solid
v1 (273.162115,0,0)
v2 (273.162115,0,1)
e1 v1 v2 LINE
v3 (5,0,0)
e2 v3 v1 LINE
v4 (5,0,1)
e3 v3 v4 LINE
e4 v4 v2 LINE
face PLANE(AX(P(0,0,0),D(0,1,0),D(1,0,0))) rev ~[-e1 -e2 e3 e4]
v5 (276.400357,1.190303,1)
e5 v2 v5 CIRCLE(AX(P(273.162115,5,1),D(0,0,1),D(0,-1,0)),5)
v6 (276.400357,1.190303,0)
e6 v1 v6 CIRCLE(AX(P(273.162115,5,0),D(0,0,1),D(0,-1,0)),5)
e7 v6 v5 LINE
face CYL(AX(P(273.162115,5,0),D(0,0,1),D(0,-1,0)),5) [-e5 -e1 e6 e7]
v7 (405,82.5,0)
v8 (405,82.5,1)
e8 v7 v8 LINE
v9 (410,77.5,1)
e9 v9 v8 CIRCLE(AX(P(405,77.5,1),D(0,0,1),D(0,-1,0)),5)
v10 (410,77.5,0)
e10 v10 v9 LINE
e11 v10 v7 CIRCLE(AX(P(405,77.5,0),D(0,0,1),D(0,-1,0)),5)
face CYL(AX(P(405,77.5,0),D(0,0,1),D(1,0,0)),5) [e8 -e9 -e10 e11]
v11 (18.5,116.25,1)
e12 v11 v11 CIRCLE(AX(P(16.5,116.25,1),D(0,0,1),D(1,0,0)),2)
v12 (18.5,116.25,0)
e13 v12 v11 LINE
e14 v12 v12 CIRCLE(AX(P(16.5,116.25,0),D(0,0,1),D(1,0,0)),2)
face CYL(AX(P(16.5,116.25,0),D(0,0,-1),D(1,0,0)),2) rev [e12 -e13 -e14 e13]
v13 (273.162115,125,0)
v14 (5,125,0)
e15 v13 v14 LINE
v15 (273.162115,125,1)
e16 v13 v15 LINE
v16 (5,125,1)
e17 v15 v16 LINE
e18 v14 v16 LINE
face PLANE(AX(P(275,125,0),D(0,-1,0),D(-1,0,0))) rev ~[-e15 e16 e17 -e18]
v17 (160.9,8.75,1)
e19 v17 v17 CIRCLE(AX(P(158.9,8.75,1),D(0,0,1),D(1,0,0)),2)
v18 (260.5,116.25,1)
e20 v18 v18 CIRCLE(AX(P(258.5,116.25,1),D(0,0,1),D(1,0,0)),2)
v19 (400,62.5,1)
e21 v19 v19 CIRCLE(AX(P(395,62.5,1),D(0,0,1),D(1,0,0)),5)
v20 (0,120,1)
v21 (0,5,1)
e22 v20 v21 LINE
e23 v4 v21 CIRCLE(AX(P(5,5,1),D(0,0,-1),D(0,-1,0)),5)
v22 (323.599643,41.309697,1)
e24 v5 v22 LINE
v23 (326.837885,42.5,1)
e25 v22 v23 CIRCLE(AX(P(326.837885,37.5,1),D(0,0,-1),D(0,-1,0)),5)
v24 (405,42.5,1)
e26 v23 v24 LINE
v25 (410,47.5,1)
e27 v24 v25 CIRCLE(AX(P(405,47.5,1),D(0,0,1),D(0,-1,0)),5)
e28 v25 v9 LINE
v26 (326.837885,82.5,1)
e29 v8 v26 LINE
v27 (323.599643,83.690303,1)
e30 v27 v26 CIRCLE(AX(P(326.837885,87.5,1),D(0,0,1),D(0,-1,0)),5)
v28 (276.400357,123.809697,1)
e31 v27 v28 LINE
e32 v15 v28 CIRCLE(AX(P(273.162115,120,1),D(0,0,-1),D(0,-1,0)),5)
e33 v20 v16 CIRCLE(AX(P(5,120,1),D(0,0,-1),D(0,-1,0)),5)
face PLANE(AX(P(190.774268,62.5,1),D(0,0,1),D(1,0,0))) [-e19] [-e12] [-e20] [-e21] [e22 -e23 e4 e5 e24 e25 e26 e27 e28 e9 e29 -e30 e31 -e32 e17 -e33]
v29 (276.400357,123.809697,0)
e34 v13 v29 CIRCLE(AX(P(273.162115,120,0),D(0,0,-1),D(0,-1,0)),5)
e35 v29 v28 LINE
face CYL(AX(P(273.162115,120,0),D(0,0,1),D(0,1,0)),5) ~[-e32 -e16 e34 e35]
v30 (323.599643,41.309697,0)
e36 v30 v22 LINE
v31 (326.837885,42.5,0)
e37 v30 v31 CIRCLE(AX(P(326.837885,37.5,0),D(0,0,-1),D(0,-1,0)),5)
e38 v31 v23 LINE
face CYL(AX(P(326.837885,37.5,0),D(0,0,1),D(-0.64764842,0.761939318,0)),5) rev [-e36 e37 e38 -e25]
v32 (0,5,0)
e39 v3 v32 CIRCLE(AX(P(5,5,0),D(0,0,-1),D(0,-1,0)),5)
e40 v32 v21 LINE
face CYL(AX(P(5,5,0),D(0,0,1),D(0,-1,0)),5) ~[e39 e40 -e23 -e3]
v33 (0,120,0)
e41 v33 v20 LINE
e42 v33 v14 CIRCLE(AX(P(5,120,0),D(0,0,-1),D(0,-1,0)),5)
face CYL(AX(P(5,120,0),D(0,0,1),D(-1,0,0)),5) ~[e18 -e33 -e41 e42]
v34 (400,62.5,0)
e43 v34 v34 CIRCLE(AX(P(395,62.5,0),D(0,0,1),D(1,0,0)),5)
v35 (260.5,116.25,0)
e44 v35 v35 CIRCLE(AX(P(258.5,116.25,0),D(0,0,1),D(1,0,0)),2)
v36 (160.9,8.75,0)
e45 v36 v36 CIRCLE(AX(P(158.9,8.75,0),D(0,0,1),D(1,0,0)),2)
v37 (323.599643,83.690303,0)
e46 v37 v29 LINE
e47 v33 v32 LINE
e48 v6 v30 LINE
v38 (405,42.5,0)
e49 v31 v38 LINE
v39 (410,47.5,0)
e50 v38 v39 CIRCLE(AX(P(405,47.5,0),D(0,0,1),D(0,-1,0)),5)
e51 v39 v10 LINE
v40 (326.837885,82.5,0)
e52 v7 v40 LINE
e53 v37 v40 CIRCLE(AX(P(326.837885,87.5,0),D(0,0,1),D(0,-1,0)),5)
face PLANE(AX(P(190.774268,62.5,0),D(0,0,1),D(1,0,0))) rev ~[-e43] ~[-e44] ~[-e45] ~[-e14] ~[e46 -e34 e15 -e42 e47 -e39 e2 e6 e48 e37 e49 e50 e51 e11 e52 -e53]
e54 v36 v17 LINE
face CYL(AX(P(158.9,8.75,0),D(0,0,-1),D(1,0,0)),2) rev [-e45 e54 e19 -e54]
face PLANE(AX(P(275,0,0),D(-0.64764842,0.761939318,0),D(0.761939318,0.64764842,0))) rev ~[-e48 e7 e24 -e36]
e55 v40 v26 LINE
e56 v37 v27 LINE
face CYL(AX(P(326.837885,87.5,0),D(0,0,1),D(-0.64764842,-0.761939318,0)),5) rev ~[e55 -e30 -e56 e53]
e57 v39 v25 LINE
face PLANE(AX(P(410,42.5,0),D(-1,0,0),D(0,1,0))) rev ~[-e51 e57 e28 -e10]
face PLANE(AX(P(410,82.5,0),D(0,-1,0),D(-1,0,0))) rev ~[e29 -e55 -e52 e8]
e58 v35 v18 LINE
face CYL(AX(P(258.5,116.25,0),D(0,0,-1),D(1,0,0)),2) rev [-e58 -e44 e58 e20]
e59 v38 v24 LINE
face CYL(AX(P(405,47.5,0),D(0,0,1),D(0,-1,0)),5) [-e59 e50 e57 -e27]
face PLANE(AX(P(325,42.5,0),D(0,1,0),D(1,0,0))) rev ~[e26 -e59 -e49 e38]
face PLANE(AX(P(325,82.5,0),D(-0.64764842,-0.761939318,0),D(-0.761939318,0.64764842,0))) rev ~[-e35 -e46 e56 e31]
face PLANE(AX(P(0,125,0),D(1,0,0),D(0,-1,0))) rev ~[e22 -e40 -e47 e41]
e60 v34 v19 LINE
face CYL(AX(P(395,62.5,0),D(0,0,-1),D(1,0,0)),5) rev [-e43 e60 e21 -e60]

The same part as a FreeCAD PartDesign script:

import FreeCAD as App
import Part
import Sketcher
Q = App.Units.Quantity


def edges_at(feature, points):
    """Names of the edges that pass closest to the given points."""
    edges = feature.Shape.Edges
    near = lambda p: min(range(len(edges)), key=lambda i: edges[i].distToShape(Part.Vertex(*p))[0])
    return sorted({f"Edge{near(p) + 1}" for p in points})

doc = App.newDocument("Part")
body = doc.addObject("PartDesign::Body", "Body")

sketch1 = doc.addObject("Sketcher::SketchObject", "Sketch")
body.addObject(sketch1)
sketch1.AttachmentSupport = (doc.XY_Plane, [""])
sketch1.MapMode = "FlatFace"
sketch1.addGeometry(Part.LineSegment(App.Vector(0, 0, 0), App.Vector(275, 0, 0)), False)
sketch1.addGeometry(Part.LineSegment(App.Vector(275, 0, 0), App.Vector(325, 42.5, 0)), False)
sketch1.addGeometry(Part.LineSegment(App.Vector(325, 42.5, 0), App.Vector(410, 42.5, 0)), False)
sketch1.addGeometry(Part.LineSegment(App.Vector(410, 42.5, 0), App.Vector(410, 82.5, 0)), False)
sketch1.addGeometry(Part.LineSegment(App.Vector(410, 82.5, 0), App.Vector(325, 82.5, 0)), False)
sketch1.addGeometry(Part.LineSegment(App.Vector(325, 82.5, 0), App.Vector(275, 125, 0)), False)
sketch1.addGeometry(Part.LineSegment(App.Vector(275, 125, 0), App.Vector(0, 125, 0)), False)
sketch1.addGeometry(Part.LineSegment(App.Vector(0, 125, 0), App.Vector(0, 0, 0)), False)
sketch1.addGeometry(Part.Circle(App.Vector(158.9, 8.75, 0), App.Vector(0, 0, 1), 2), False)
sketch1.addGeometry(Part.Circle(App.Vector(16.5, 116.25, 0), App.Vector(0, 0, 1), 2), False)
sketch1.addGeometry(Part.Circle(App.Vector(395, 62.5, 0), App.Vector(0, 0, 1), 5), False)
sketch1.addGeometry(Part.Circle(App.Vector(258.5, 116.25, 0), App.Vector(0, 0, 1), 2), False)
sketch1.addConstraint(Sketcher.Constraint("Coincident", 0, 2, 1, 1))
sketch1.addConstraint(Sketcher.Constraint("Coincident", 1, 2, 2, 1))
sketch1.addConstraint(Sketcher.Constraint("Coincident", 2, 2, 3, 1))
sketch1.addConstraint(Sketcher.Constraint("Coincident", 3, 2, 4, 1))
sketch1.addConstraint(Sketcher.Constraint("Coincident", 4, 2, 5, 1))
sketch1.addConstraint(Sketcher.Constraint("Coincident", 5, 2, 6, 1))
sketch1.addConstraint(Sketcher.Constraint("Coincident", 6, 2, 7, 1))
sketch1.addConstraint(Sketcher.Constraint("Coincident", 7, 2, 0, 1))
sketch1.addConstraint(Sketcher.Constraint("Horizontal", 0))
sketch1.addConstraint(Sketcher.Constraint("Horizontal", 2))
sketch1.addConstraint(Sketcher.Constraint("Vertical", 3))
sketch1.addConstraint(Sketcher.Constraint("Horizontal", 4))
sketch1.addConstraint(Sketcher.Constraint("Horizontal", 6))
sketch1.addConstraint(Sketcher.Constraint("Vertical", 7))
sketch1.addConstraint(Sketcher.Constraint("Coincident", 7, 2, -1, 1))
sketch1.addConstraint(Sketcher.Constraint("Equal", 8, 9))
sketch1.addConstraint(Sketcher.Constraint("Equal", 9, 11))
sketch1.addConstraint(Sketcher.Constraint("Horizontal", 9, 3, 11, 3))
sketch1.addConstraint(Sketcher.Constraint("Vertical", 1, 2, 4, 2))
sketch1.addConstraint(Sketcher.Constraint("Vertical", 0, 2, 5, 2))
sketch1.addConstraint(Sketcher.Constraint("Equal", 1, 5))
sketch1.addConstraint(Sketcher.Constraint("Diameter", 8, Q("4 mm")))
sketch1.addConstraint(Sketcher.Constraint("Diameter", 10, Q("10 mm")))
sketch1.addConstraint(Sketcher.Constraint("DistanceX", 0, 1, 0, 2, Q("275 mm")))
sketch1.addConstraint(Sketcher.Constraint("DistanceX", 2, 1, 2, 2, Q("85 mm")))
sketch1.addConstraint(Sketcher.Constraint("DistanceY", 3, 1, 3, 2, Q("40 mm")))
sketch1.addConstraint(Sketcher.Constraint("DistanceY", 7, 2, 7, 1, Q("125 mm")))
sketch1.addConstraint(Sketcher.Constraint("DistanceX", -1, 1, 10, 3, Q("395 mm")))
sketch1.addConstraint(Sketcher.Constraint("DistanceX", -1, 1, 1, 2, Q("325 mm")))
sketch1.addConstraint(Sketcher.Constraint("DistanceX", 9, 3, 11, 3, Q("242 mm")))
sketch1.addConstraint(Sketcher.Constraint("DistanceY", 1, 2, 10, 3, Q("20 mm")))
sketch1.addConstraint(Sketcher.Constraint("DistanceX", -1, 1, 8, 3, Q("158.9 mm")))
sketch1.addConstraint(Sketcher.Constraint("DistanceX", -1, 1, 9, 3, Q("16.5 mm")))
sketch1.addConstraint(Sketcher.Constraint("DistanceY", 8, 3, 9, 3, Q("107.5 mm")))
sketch1.addConstraint(Sketcher.Constraint("DistanceY", -1, 1, 8, 3, Q("8.75 mm")))
pad1 = doc.addObject("PartDesign::Pad", "Pad")
body.addObject(pad1)
pad1.Profile = sketch1
pad1.Length = 1
doc.recompute()

fillet = doc.addObject("PartDesign::Fillet", "Fillet")
body.addObject(fillet)
fillet.Base = (pad1, edges_at(pad1, [
    (0, 0, 0.5),
    (275, 0, 0.5),
    (325, 42.5, 0.5),
    (410, 42.5, 0.5),
    (410, 82.5, 0.5),
    (325, 82.5, 0.5),
    (275, 125, 0.5),
    (0, 125, 0.5),
]))
fillet.Radius = 5

doc.recompute()
